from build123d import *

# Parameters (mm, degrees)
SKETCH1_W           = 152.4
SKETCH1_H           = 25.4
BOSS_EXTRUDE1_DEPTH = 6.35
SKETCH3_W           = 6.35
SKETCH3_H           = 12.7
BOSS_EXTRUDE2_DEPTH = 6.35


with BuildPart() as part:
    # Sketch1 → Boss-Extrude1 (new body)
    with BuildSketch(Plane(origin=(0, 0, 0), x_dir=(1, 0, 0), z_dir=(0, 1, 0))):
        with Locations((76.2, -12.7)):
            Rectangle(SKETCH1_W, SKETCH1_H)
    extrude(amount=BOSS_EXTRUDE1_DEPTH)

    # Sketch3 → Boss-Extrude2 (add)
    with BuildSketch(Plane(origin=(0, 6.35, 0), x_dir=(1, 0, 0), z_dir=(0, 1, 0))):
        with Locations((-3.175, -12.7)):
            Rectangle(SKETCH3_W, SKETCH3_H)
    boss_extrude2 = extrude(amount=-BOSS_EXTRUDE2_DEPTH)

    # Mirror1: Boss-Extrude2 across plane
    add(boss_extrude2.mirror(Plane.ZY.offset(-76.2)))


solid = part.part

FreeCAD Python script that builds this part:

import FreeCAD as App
import Part
import Sketcher
from FreeCAD import Vector
Q = App.Units.Quantity


def add_polygon(sketch, points):
    """Adds a closed chain of lines whose ends are joined by coincident constraints."""
    first, n = sketch.GeometryCount, len(points)
    for a, b in zip(points, points[1:] + points[:1]):
        sketch.addGeometry(Part.LineSegment(App.Vector(*a, 0), App.Vector(*b, 0)), False)
    for i in range(n):
        sketch.addConstraint(Sketcher.Constraint("Coincident", first + i, 2, first + (i + 1) % n, 1))

doc = App.newDocument("Part")
params = doc.addObject("Spreadsheet::Sheet", "Params")
for row, (alias, value) in enumerate([
    ("sketch1_width", "6 in"),
    ("sketch1_height", "1 in"),
    ("pad1_length", "0.25 in"),
    ("sketch2_height", "0.5 in"),
    ("sketch2_width", "0.25 in"),
    ("pad2_length", "0.25 in"),
], start=1):
    params.set(f"A{row}", alias)
    params.set(f"B{row}", "=" + value)
    params.setAlias(f"B{row}", alias)

body = doc.addObject("PartDesign::Body", "Body")

# Sketch on XZ plane
sketch1 = doc.addObject("Sketcher::SketchObject", "Sketch")
body.addObject(sketch1)
sketch1.AttachmentSupport = (doc.XZ_Plane, [""])
sketch1.MapMode = "FlatFace"
add_polygon(sketch1, [(0, 0), (0, 25), (152, 25), (152, 0)])  # lines 0-3
sketch1.addConstraint(Sketcher.Constraint("Vertical", 0))
sketch1.addConstraint(Sketcher.Constraint("Horizontal", 1))
sketch1.addConstraint(Sketcher.Constraint("Vertical", 2))
sketch1.addConstraint(Sketcher.Constraint("Horizontal", 3))
sketch1.addConstraint(Sketcher.Constraint("Coincident", 3, 2, -1, 1))
sketch1.addConstraint(Sketcher.Constraint("DistanceX", 1, 1, 1, 2, Q("6 in")))
sketch1.addConstraint(Sketcher.Constraint("DistanceY", 0, 1, 0, 2, Q("1 in")))
sketch1.setExpression("Constraints[9]", "Params.sketch1_width")
sketch1.setExpression("Constraints[10]", "Params.sketch1_height")
pad1 = doc.addObject("PartDesign::Pad", "Pad")
body.addObject(pad1)
pad1.Profile = sketch1
pad1.setExpression("Length", "Params.pad1_length")
pad1.Reversed = True

# Sketch on XZ plane
sketch2 = doc.addObject("Sketcher::SketchObject", "Sketch001")
body.addObject(sketch2)
sketch2.AttachmentSupport = (doc.XZ_Plane, [""])
sketch2.MapMode = "FlatFace"
sketch2.AttachmentOffset = App.Placement(Vector(0, 0, -0.25 * 25.4), App.Rotation())
add_polygon(sketch2, [(-6, 6), (-6, 19), (0, 19), (0, 6)])  # lines 0-3
sketch2.addConstraint(Sketcher.Constraint("Vertical", 0))
sketch2.addConstraint(Sketcher.Constraint("Horizontal", 1))
sketch2.addConstraint(Sketcher.Constraint("Vertical", 2))
sketch2.addConstraint(Sketcher.Constraint("Horizontal", 3))
sketch2.addConstraint(Sketcher.Constraint("PointOnObject", 1, 2, -2))
sketch2.addConstraint(Sketcher.Constraint("DistanceY", 0, 1, 0, 2, Q("0.5 in")))
sketch2.addConstraint(Sketcher.Constraint("DistanceX", 1, 1, 1, 2, Q("0.25 in")))
sketch2.addConstraint(Sketcher.Constraint("DistanceY", -1, 1, 0, 2, Q("0.75 in")))
sketch2.setExpression("Constraints[9]", "Params.sketch2_height")
sketch2.setExpression("Constraints[10]", "Params.sketch2_width")
pad2 = doc.addObject("PartDesign::Pad", "Pad001")
body.addObject(pad2)
pad2.Profile = sketch2
pad2.setExpression("Length", "Params.pad2_length")
doc.recompute()

datumplane = doc.addObject("PartDesign::Plane", "DatumPlane")
body.addObject(datumplane)
datumplane.AttachmentSupport = (doc.YZ_Plane, [""])
datumplane.MapMode = "FlatFace"
datumplane.AttachmentOffset = App.Placement(Vector(0, 0, 3 * 25.4), App.Rotation())
mirrored = doc.addObject("PartDesign::Mirrored", "Mirrored")
body.addObject(mirrored)
mirrored.Originals = [pad2]
mirrored.MirrorPlane = (datumplane, [""])
body.Tip = mirrored

doc.recompute()
